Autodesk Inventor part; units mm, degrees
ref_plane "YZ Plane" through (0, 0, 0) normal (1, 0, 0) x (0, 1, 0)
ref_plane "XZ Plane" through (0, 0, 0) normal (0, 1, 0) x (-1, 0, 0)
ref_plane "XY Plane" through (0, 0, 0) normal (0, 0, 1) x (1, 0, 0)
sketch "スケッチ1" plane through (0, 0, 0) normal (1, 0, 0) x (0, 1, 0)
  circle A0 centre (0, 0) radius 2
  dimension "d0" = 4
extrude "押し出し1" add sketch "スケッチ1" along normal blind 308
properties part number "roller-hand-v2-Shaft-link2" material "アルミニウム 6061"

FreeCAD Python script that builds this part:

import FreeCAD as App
import Part
import Sketcher

V = App.Vector
Q = App.Units.Quantity

doc = App.newDocument("Part")
body = doc.addObject("PartDesign::Body", "Body")

# Sketch on YZ plane
sketch1 = body.newObject("Sketcher::SketchObject", "Sketch")
sketch1.AttachmentSupport = (doc.getObject("YZ_Plane"), [""])
sketch1.MapMode = "FlatFace"
sketch1.addGeometry(Part.Circle(V(0, 0, 0), V(0, 0, 1), 2), False)
sketch1.addConstraint([
    Sketcher.Constraint("Coincident", 0, 3, -1, 1),
    Sketcher.Constraint("Diameter", 0, Q("4 mm")),
])
pad1 = body.newObject("PartDesign::Pad", "Pad")
pad1.Profile = sketch1
pad1.Length = 308

doc.recompute()
